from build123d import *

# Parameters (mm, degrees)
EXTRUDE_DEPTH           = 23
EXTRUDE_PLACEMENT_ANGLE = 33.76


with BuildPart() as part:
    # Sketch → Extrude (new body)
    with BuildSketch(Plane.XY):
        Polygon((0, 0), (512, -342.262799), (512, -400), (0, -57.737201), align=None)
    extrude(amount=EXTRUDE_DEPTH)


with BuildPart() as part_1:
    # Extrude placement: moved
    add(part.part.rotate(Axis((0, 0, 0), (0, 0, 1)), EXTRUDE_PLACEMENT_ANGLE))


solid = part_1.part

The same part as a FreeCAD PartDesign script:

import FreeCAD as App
import Part
import Sketcher

V = App.Vector
Q = App.Units.Quantity

doc = App.newDocument("Part")
body = doc.addObject("PartDesign::Body", "Body")

# Sketch on XY plane
sketch1 = body.newObject("Sketcher::SketchObject", "Sketch")
sketch1.AttachmentSupport = (doc.getObject("XY_Plane"), [""])
sketch1.MapMode = "FlatFace"
sketch1.addGeometry([
    Part.LineSegment(V(512, -342, 0), V(0, 0, 0)),
    Part.LineSegment(V(0, 0, 0), V(0, -58, 0)),
    Part.LineSegment(V(0, -58, 0), V(512, -400, 0)),
    Part.LineSegment(V(512, -400, 0), V(512, -342, 0)),
], False)
sketch1.addConstraint([
    Sketcher.Constraint("Coincident", 0, 2, 1, 1),
    Sketcher.Constraint("Coincident", 1, 2, 2, 1),
    Sketcher.Constraint("Coincident", 2, 2, 3, 1),
    Sketcher.Constraint("Coincident", 3, 2, 0, 1),
    Sketcher.Constraint("Vertical", 1),
    Sketcher.Constraint("Vertical", 3),
    Sketcher.Constraint("Coincident", 0, 2, -1, 1),
    Sketcher.Constraint("Parallel", 0, 2),
    Sketcher.Constraint("DistanceX", -1, 1, 2, 2, Q("512 mm")),
    Sketcher.Constraint("DistanceY", 2, 2, -1, 1, Q("400 mm")),
    Sketcher.Constraint("DistanceY", 1, 2, 1, 1, Q("57.737201 mm")),
])
pad1 = body.newObject("PartDesign::Pad", "Pad")
pad1.Profile = sketch1
pad1.Length = 23
body2 = doc.addObject("PartDesign::Body", "Body001")
doc.recompute()

body.Placement = App.Placement(V(0, 0, 0), App.Rotation(V(0, 0, 1), 33.76))
boolean = body2.newObject("PartDesign::Boolean", "Boolean")
boolean.Type = "Fuse"
boolean.addObjects([body])

doc.recompute()
